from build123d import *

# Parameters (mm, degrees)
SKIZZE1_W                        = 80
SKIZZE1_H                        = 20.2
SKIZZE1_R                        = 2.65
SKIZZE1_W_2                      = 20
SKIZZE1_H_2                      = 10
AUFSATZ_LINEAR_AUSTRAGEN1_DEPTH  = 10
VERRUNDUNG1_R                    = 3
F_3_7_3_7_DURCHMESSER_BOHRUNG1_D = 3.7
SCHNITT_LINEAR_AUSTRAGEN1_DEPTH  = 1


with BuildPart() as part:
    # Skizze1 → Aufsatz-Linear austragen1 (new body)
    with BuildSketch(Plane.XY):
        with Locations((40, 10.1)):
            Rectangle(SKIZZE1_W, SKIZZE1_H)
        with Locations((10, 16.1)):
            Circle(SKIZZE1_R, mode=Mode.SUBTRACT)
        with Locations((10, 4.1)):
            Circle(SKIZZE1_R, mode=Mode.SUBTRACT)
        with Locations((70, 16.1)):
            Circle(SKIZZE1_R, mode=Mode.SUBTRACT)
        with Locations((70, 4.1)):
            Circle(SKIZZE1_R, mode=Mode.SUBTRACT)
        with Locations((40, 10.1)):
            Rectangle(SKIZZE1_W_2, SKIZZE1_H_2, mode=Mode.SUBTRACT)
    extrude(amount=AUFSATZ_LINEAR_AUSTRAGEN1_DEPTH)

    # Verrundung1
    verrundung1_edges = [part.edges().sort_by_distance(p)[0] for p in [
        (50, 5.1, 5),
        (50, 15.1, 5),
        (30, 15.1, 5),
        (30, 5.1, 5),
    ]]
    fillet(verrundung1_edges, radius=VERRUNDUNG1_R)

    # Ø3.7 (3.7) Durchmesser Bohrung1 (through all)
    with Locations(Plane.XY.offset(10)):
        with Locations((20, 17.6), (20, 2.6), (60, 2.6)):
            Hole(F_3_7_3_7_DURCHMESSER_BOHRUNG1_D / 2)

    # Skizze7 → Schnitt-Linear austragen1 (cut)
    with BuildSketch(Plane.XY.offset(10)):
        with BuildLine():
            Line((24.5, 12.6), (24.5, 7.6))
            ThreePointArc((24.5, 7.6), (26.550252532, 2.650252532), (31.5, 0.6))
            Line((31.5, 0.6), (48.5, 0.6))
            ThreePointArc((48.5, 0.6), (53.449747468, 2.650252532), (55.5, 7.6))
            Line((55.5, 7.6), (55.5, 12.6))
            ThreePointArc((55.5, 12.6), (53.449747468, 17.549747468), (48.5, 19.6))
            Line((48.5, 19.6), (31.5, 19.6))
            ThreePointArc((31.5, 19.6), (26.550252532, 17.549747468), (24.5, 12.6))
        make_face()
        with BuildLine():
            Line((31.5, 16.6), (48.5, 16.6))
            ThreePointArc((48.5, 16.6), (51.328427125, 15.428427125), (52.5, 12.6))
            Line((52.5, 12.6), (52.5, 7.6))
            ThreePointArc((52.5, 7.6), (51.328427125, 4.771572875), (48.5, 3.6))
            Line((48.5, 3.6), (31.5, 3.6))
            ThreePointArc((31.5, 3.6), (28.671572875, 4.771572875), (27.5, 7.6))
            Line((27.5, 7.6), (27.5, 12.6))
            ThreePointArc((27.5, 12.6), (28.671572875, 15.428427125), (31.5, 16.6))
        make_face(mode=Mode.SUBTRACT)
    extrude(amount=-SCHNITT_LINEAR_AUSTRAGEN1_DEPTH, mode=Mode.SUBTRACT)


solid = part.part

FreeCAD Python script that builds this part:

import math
import FreeCAD as App
import Part
import Sketcher

V = App.Vector


def edges_at(feature, points):
    """Names of the edges that pass closest to the given points."""
    edges = feature.Shape.Edges
    near = lambda p: min(range(len(edges)), key=lambda i: edges[i].distToShape(Part.Vertex(*p))[0])
    return sorted({f"Edge{near(p) + 1}" for p in points})

doc = App.newDocument("Part")
params = doc.addObject("Spreadsheet::Sheet", "Params")
for row, (alias, value) in enumerate([
    ("sketch1_diameter", "5.3 mm"),
    ("sketch1_width", "80 mm"),
    ("sketch1_width2", "20 mm"),
    ("sketch1_height", "10 mm"),
    ("sketch1_height2", "20.2 mm"),
    ("pad1_length", "10 mm"),
    ("fillet_radius", "3 mm"),
    ("sketch2_diameter", "3.7 mm"),
    ("hole_diameter", "3.7 mm"),
    ("sketch3_radius", "7 mm"),
    ("sketch3_radius2", "4 mm"),
    ("sketch3_width", "17 mm"),
    ("sketch3_height", "5 mm"),
    ("pocket1_length", "1 mm"),
], start=1):
    params.set(f"A{row}", alias)
    params.set(f"B{row}", "=" + value)
    params.setAlias(f"B{row}", alias)

body = doc.addObject("PartDesign::Body", "Body")

# Sketch on XY plane
sketch1 = body.newObject("Sketcher::SketchObject", "Sketch")
sketch1.AttachmentSupport = (doc.getObject("XY_Plane"), [""])
sketch1.MapMode = "FlatFace"
sketch1.addGeometry([
    Part.LineSegment(V(0, 20.2, 0), V(0, 0, 0)),  # 0
    Part.LineSegment(V(0, 0, 0), V(80, 0, 0)),  # 1
    Part.LineSegment(V(80, 0, 0), V(80, 20.2, 0)),  # 2
    Part.LineSegment(V(80, 20.2, 0), V(0, 20.2, 0)),  # 3
    Part.Circle(V(10, 4.1, 0), V(0, 0, 1), 2.65),  # 4
    Part.Circle(V(70, 4.1, 0), V(0, 0, 1), 2.65),  # 5
    Part.Circle(V(10, 16.1, 0), V(0, 0, 1), 2.65),  # 6
    Part.LineSegment(V(50, 5.1, 0), V(30, 5.1, 0)),  # 7
    Part.LineSegment(V(30, 5.1, 0), V(30, 15.1, 0)),  # 8
    Part.LineSegment(V(30, 15.1, 0), V(50, 15.1, 0)),  # 9
    Part.LineSegment(V(50, 15.1, 0), V(50, 5.1, 0)),  # 10
    Part.Circle(V(70, 16.1, 0), V(0, 0, 1), 2.65),  # 11
], False)
sketch1.addConstraint([
    Sketcher.Constraint("Coincident", 0, 2, 1, 1),
    Sketcher.Constraint("Coincident", 1, 2, 2, 1),
    Sketcher.Constraint("Coincident", 2, 2, 3, 1),
    Sketcher.Constraint("Coincident", 3, 2, 0, 1),
    Sketcher.Constraint("Coincident", 7, 2, 8, 1),
    Sketcher.Constraint("Coincident", 8, 2, 9, 1),
    Sketcher.Constraint("Coincident", 9, 2, 10, 1),
    Sketcher.Constraint("Coincident", 10, 2, 7, 1),
    Sketcher.Constraint("Vertical", 0),
    Sketcher.Constraint("Horizontal", 1),
    Sketcher.Constraint("Vertical", 2),
    Sketcher.Constraint("Horizontal", 3),
    Sketcher.Constraint("Horizontal", 7),
    Sketcher.Constraint("Vertical", 8),
    Sketcher.Constraint("Horizontal", 9),
    Sketcher.Constraint("Vertical", 10),
    Sketcher.Constraint("Coincident", 0, 2, -1, 1),
    Sketcher.Constraint("Equal", 4, 5),
    Sketcher.Constraint("Equal", 5, 6),
    Sketcher.Constraint("Equal", 6, 11),
    Sketcher.Constraint("Horizontal", 4, 3, 5, 3),
    Sketcher.Constraint("Horizontal", 6, 3, 11, 3),
    Sketcher.Constraint("Vertical", 4, 3, 6, 3),
    Sketcher.Constraint("Vertical", 5, 3, 11, 3),
    Sketcher.Constraint("Diameter", 4, 5.3),
    Sketcher.Constraint("DistanceX", 1, 1, 1, 2, 80.0),
    Sketcher.Constraint("DistanceX", 7, 2, 7, 1, 20.0),
    Sketcher.Constraint("DistanceY", 8, 1, 8, 2, 10.0),
    Sketcher.Constraint("DistanceY", 0, 2, 0, 1, 20.2),
    Sketcher.Constraint("DistanceX", -1, 1, 4, 3, 10.0),
    Sketcher.Constraint("DistanceX", -1, 1, 5, 3, 70.0),
    Sketcher.Constraint("DistanceX", -1, 1, 7, 2, 30.0),
    Sketcher.Constraint("DistanceY", 4, 3, 6, 3, 12.0),
    Sketcher.Constraint("DistanceY", 4, 3, 7, 2, 1.0),
    Sketcher.Constraint("DistanceY", -1, 1, 4, 3, 4.1),
])
sketch1.setExpression("Constraints[24]", "Params.sketch1_diameter")
sketch1.setExpression("Constraints[25]", "Params.sketch1_width")
sketch1.setExpression("Constraints[26]", "Params.sketch1_width2")
sketch1.setExpression("Constraints[27]", "Params.sketch1_height")
sketch1.setExpression("Constraints[28]", "Params.sketch1_height2")
pad1 = body.newObject("PartDesign::Pad", "Pad")
pad1.Profile = sketch1
pad1.setExpression("Length", "Params.pad1_length")
doc.recompute()

fillet = body.newObject("PartDesign::Fillet", "Fillet")
fillet.Base = (pad1, edges_at(pad1, [
    (50, 5.1, 5),
    (50, 15.1, 5),
    (30, 15.1, 5),
    (30, 5.1, 5),
]))
fillet.setExpression("Radius", "Params.fillet_radius")

# Sketch on XY plane
sketch2 = body.newObject("Sketcher::SketchObject", "Sketch001")
sketch2.AttachmentSupport = (doc.getObject("XY_Plane"), [""])
sketch2.MapMode = "FlatFace"
sketch2.AttachmentOffset = App.Placement(V(0, 0, 10), App.Rotation())
sketch2.addGeometry([
    Part.Circle(V(20, 17.6, 0), V(0, 0, 1), 1.85),
    Part.Circle(V(20, 2.6, 0), V(0, 0, 1), 1.85),
    Part.Circle(V(60, 2.6, 0), V(0, 0, 1), 1.85),
], False)
sketch2.addConstraint([
    Sketcher.Constraint("Equal", 0, 1),
    Sketcher.Constraint("Equal", 1, 2),
    Sketcher.Constraint("Horizontal", 1, 3, 2, 3),
    Sketcher.Constraint("Vertical", 0, 3, 1, 3),
    Sketcher.Constraint("Diameter", 0, 3.7),
    Sketcher.Constraint("DistanceX", -1, 1, 0, 3, 20.0),
    Sketcher.Constraint("DistanceX", -1, 1, 2, 3, 60.0),
    Sketcher.Constraint("DistanceY", 1, 3, 0, 3, 15.0),
    Sketcher.Constraint("DistanceY", -1, 1, 0, 3, 17.6),
])
sketch2.setExpression("Constraints[4]", "Params.sketch2_diameter")
doc.recompute()
hole = body.newObject("PartDesign::Hole", "Hole")
hole.Profile = sketch2
hole.ThreadType = "None"
hole.setExpression("Diameter", "Params.hole_diameter")
hole.DepthType = "ThroughAll"

# Sketch on XY plane
sketch3 = body.newObject("Sketcher::SketchObject", "Sketch002")
sketch3.AttachmentSupport = (doc.getObject("XY_Plane"), [""])
sketch3.MapMode = "FlatFace"
sketch3.AttachmentOffset = App.Placement(V(0, 0, 10), App.Rotation())
sketch3.addGeometry([
    Part.LineSegment(V(24.5, 12.6, 0), V(24.5, 7.6, 0)),  # 0
    Part.ArcOfCircle(Part.Circle(V(31.5, 7.6, 0), V(0, 0, 1), 7), math.radians(-180), math.radians(-90)),  # 1
    Part.LineSegment(V(31.5, 0.6, 0), V(48.5, 0.6, 0)),  # 2
    Part.ArcOfCircle(Part.Circle(V(48.5, 7.6, 0), V(0, 0, 1), 7), math.radians(-90), math.radians(0)),  # 3
    Part.LineSegment(V(55.5, 7.6, 0), V(55.5, 12.6, 0)),  # 4
    Part.ArcOfCircle(Part.Circle(V(48.5, 12.6, 0), V(0, 0, 1), 7), math.radians(0), math.radians(90)),  # 5
    Part.LineSegment(V(48.5, 19.6, 0), V(31.5, 19.6, 0)),  # 6
    Part.ArcOfCircle(Part.Circle(V(31.5, 12.6, 0), V(0, 0, 1), 7), math.radians(90), math.radians(180)),  # 7
    Part.ArcOfCircle(Part.Circle(V(31.5, 12.6, 0), V(0, 0, 1), 4), math.radians(90), math.radians(180)),  # 8
    Part.LineSegment(V(31.5, 16.6, 0), V(48.5, 16.6, 0)),  # 9
    Part.ArcOfCircle(Part.Circle(V(48.5, 12.6, 0), V(0, 0, 1), 4), math.radians(0), math.radians(90)),  # 10
    Part.LineSegment(V(52.5, 12.6, 0), V(52.5, 7.6, 0)),  # 11
    Part.ArcOfCircle(Part.Circle(V(48.5, 7.6, 0), V(0, 0, 1), 4), math.radians(-90), math.radians(0)),  # 12
    Part.LineSegment(V(48.5, 3.6, 0), V(31.5, 3.6, 0)),  # 13
    Part.ArcOfCircle(Part.Circle(V(31.5, 7.6, 0), V(0, 0, 1), 4), math.radians(180), math.radians(270)),  # 14
    Part.LineSegment(V(27.5, 7.6, 0), V(27.5, 12.6, 0)),  # 15
], False)
sketch3.addConstraint([
    Sketcher.Constraint("Tangent", 0, 2, 1, 1),
    Sketcher.Constraint("Tangent", 1, 2, 2, 1),
    Sketcher.Constraint("Tangent", 2, 2, 3, 1),
    Sketcher.Constraint("Tangent", 3, 2, 4, 1),
    Sketcher.Constraint("Tangent", 4, 2, 5, 1),
    Sketcher.Constraint("Tangent", 5, 2, 6, 1),
    Sketcher.Constraint("Tangent", 6, 2, 7, 1),
    Sketcher.Constraint("Tangent", 7, 2, 0, 1),
    Sketcher.Constraint("Tangent", 8, 1, 9, 1),
    Sketcher.Constraint("Tangent", 9, 2, 10, 2),
    Sketcher.Constraint("Tangent", 10, 1, 11, 1),
    Sketcher.Constraint("Tangent", 11, 2, 12, 2),
    Sketcher.Constraint("Tangent", 12, 1, 13, 1),
    Sketcher.Constraint("Tangent", 13, 2, 14, 2),
    Sketcher.Constraint("Tangent", 14, 1, 15, 1),
    Sketcher.Constraint("Tangent", 15, 2, 8, 2),
    Sketcher.Constraint("Vertical", 0),
    Sketcher.Constraint("Horizontal", 2),
    Sketcher.Constraint("Vertical", 4),
    Sketcher.Constraint("Horizontal", 6),
    Sketcher.Constraint("Horizontal", 9),
    Sketcher.Constraint("Vertical", 11),
    Sketcher.Constraint("Horizontal", 13),
    Sketcher.Constraint("Vertical", 15),
    Sketcher.Constraint("Coincident", 8, 3, 7, 3),
    Sketcher.Constraint("Coincident", 10, 3, 5, 3),
    Sketcher.Constraint("Coincident", 12, 3, 3, 3),
    Sketcher.Constraint("Equal", 1, 3),
    Sketcher.Constraint("Equal", 3, 5),
    Sketcher.Constraint("Equal", 5, 7),
    Sketcher.Constraint("Equal", 12, 14),
    Sketcher.Constraint("Radius", 1, 7.0),
    Sketcher.Constraint("Radius", 8, 4.0),
    Sketcher.Constraint("DistanceX", 2, 1, 2, 2, 17.0),
    Sketcher.Constraint("DistanceY", 0, 2, 0, 1, 5.0),
    Sketcher.Constraint("DistanceX", -1, 1, 1, 3, 31.5),
    Sketcher.Constraint("DistanceY", -1, 1, 1, 3, 7.6),
])
sketch3.setExpression("Constraints[31]", "Params.sketch3_radius")
sketch3.setExpression("Constraints[32]", "Params.sketch3_radius2")
sketch3.setExpression("Constraints[33]", "Params.sketch3_width")
sketch3.setExpression("Constraints[34]", "Params.sketch3_height")
pocket1 = body.newObject("PartDesign::Pocket", "Pocket")
pocket1.Profile = sketch3
pocket1.setExpression("Length", "Params.pocket1_length")

doc.recompute()
